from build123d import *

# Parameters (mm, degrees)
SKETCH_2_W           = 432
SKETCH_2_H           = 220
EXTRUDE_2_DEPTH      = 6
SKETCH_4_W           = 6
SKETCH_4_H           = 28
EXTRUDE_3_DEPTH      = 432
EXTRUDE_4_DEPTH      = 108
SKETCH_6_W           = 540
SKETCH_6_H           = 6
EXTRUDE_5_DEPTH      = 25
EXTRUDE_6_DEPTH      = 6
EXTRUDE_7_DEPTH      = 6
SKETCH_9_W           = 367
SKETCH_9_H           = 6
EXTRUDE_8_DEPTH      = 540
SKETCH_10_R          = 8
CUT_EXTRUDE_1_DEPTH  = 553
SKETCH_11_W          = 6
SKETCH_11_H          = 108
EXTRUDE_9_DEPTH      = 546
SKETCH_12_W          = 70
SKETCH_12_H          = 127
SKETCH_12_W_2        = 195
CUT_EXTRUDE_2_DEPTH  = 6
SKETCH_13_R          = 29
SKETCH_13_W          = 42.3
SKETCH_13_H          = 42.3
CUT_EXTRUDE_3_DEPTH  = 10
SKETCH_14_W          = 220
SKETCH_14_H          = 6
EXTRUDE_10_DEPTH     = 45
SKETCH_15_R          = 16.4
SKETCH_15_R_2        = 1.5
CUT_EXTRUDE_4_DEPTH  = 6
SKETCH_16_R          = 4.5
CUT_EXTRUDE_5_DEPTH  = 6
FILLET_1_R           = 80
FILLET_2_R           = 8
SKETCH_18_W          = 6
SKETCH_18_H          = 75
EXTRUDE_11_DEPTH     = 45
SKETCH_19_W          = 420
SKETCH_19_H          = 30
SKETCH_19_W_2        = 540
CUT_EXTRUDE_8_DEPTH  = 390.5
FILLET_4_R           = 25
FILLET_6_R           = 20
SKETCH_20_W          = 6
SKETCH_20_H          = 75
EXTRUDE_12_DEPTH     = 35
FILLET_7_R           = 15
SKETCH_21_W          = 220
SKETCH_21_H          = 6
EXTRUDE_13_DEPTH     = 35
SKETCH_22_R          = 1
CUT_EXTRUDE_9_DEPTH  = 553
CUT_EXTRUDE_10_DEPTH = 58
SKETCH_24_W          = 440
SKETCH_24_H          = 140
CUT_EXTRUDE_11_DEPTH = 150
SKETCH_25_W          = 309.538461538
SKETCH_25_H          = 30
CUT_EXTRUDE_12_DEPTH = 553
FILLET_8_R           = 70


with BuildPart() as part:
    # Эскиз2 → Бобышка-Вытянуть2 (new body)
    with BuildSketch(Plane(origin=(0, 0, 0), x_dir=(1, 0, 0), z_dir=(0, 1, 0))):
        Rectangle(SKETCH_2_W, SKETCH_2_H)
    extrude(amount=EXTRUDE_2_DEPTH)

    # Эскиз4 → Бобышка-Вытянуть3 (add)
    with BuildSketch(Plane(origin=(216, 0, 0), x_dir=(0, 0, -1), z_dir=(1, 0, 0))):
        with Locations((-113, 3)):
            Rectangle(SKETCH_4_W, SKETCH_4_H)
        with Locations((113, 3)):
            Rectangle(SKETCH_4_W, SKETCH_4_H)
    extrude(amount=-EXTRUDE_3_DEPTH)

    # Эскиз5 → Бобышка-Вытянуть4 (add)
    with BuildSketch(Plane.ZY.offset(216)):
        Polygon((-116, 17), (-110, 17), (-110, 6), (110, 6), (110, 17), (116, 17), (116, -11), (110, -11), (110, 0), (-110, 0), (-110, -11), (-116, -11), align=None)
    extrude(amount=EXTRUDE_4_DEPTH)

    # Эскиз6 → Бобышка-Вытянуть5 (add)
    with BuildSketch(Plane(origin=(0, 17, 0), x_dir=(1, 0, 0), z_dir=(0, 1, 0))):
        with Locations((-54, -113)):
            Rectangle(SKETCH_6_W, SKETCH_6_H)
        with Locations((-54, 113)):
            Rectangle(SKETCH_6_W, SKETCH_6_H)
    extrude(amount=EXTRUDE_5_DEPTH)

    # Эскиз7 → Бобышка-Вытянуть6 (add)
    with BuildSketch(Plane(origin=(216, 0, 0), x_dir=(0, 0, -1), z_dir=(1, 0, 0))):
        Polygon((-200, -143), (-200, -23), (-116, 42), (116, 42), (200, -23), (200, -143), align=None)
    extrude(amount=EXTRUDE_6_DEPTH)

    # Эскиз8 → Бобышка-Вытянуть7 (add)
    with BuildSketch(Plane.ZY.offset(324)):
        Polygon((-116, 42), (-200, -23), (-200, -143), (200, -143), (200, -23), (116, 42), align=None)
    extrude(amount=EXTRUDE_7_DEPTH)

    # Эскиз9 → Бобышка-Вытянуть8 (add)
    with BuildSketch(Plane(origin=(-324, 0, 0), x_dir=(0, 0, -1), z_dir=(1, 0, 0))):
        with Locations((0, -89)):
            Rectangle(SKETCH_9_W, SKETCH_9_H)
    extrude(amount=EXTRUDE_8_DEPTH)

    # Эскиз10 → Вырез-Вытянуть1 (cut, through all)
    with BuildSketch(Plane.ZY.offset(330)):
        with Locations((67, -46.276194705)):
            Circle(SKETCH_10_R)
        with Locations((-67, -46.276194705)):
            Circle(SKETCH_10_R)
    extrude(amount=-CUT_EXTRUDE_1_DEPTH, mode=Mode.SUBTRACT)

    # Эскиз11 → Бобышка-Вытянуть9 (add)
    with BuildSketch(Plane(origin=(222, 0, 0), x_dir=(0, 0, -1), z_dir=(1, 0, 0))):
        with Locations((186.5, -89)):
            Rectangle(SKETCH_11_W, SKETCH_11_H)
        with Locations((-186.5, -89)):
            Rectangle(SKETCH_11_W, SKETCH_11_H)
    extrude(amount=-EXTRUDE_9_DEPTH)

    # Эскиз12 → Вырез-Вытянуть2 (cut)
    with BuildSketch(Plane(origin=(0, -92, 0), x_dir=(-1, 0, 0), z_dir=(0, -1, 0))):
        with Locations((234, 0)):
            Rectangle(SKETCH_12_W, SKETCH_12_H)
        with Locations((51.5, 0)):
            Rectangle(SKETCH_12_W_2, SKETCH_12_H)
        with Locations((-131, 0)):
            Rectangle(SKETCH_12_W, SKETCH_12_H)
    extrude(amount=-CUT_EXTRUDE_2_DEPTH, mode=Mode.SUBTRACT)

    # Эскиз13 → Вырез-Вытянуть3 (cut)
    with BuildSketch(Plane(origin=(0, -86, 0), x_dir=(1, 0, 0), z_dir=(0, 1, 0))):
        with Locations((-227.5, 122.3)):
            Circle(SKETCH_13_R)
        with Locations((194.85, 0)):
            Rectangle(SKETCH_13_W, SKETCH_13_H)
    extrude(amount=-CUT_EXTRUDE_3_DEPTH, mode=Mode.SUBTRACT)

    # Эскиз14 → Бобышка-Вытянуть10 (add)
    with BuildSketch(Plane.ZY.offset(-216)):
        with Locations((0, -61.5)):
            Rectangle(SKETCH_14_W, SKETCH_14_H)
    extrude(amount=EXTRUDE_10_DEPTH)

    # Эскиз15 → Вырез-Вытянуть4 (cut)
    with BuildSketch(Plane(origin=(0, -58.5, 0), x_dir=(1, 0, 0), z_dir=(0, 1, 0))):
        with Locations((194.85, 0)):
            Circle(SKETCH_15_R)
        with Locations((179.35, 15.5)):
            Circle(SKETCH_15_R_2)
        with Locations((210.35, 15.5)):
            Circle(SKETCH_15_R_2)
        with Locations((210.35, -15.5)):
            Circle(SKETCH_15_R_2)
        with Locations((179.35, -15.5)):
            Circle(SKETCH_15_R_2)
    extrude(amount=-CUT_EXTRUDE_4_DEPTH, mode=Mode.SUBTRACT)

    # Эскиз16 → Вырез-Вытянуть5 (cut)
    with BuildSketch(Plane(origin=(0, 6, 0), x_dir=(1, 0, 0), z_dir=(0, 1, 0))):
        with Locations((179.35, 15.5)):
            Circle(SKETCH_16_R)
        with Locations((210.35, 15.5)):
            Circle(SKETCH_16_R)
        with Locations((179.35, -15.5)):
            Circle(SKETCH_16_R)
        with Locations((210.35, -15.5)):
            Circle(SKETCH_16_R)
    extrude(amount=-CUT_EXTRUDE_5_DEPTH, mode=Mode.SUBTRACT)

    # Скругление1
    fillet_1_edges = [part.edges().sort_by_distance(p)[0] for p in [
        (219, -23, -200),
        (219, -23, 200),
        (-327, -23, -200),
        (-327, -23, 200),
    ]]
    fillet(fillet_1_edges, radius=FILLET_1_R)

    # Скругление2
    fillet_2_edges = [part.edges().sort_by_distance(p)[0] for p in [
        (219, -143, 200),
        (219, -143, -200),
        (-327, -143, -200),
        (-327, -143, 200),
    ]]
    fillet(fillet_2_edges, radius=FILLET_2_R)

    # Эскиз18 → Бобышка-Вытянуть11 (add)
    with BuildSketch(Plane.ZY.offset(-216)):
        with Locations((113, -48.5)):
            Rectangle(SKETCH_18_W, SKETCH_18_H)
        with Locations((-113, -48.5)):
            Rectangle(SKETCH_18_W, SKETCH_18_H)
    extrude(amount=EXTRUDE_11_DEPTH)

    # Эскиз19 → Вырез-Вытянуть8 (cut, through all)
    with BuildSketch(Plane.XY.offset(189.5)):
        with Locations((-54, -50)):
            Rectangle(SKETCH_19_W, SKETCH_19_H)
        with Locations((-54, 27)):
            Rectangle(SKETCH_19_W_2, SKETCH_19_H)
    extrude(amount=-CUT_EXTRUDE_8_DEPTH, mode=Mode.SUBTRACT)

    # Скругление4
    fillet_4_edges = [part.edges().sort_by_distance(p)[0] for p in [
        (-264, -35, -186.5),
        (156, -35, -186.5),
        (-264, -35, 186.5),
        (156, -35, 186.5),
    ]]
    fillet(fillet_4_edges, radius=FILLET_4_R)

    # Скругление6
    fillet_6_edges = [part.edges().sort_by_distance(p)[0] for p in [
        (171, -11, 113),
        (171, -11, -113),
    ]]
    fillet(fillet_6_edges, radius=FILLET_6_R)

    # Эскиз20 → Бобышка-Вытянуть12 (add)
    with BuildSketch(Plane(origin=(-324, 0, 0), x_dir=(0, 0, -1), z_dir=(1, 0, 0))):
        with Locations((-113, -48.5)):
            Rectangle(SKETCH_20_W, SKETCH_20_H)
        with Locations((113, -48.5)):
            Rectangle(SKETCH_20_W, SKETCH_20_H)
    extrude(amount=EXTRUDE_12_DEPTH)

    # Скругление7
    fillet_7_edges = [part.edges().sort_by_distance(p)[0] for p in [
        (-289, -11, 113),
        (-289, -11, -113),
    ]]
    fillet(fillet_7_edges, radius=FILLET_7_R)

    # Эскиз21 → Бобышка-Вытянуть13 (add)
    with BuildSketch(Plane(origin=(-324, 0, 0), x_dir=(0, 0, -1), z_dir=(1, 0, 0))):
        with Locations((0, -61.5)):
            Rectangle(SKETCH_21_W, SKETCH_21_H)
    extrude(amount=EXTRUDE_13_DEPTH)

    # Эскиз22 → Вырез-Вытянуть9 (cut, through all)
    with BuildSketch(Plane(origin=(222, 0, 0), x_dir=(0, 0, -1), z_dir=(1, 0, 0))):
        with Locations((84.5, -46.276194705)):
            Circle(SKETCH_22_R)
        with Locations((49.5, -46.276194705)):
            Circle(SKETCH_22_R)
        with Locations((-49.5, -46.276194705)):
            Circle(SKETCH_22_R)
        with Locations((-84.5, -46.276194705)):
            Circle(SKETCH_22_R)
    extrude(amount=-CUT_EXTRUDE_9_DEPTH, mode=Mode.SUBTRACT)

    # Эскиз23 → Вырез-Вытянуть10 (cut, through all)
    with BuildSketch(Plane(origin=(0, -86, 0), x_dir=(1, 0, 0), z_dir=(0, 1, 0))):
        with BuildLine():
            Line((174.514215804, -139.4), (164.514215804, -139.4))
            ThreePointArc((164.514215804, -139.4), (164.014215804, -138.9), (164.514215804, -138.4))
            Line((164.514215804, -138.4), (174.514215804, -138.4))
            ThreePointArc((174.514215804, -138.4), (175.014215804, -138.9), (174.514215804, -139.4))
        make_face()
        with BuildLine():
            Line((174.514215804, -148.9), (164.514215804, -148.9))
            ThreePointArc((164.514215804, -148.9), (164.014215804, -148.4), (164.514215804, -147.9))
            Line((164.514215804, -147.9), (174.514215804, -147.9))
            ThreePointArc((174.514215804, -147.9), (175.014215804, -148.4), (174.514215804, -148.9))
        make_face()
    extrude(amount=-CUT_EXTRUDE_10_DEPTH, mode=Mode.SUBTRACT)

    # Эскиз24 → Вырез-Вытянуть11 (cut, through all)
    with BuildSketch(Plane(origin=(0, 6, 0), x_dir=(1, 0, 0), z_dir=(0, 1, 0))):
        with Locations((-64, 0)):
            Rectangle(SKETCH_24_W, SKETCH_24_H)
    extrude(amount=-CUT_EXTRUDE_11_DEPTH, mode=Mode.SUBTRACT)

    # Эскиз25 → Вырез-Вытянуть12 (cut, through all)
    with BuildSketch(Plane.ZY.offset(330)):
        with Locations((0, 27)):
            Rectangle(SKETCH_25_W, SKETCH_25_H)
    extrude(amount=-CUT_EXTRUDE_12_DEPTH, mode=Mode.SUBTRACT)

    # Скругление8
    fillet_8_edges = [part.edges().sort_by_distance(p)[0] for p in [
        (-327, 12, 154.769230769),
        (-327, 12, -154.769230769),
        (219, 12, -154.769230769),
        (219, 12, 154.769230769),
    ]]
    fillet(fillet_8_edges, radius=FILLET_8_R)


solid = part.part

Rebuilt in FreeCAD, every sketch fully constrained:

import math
import FreeCAD as App
import Part
import Sketcher
Q = App.Units.Quantity


def edges_at(feature, points):
    """Names of the edges that pass closest to the given points."""
    edges = feature.Shape.Edges
    near = lambda p: min(range(len(edges)), key=lambda i: edges[i].distToShape(Part.Vertex(*p))[0])
    return sorted({f"Edge{near(p) + 1}" for p in points})


def add_polygon(sketch, points):
    """Adds a closed chain of lines whose ends are joined by coincident constraints."""
    first, n = sketch.GeometryCount, len(points)
    for a, b in zip(points, points[1:] + points[:1]):
        sketch.addGeometry(Part.LineSegment(App.Vector(*a, 0), App.Vector(*b, 0)), False)
    for i in range(n):
        sketch.addConstraint(Sketcher.Constraint("Coincident", first + i, 2, first + (i + 1) % n, 1))

doc = App.newDocument("Part")
body = doc.addObject("PartDesign::Body", "Body")

# Sketch on XZ plane
sketch1 = doc.addObject("Sketcher::SketchObject", "Sketch")
body.addObject(sketch1)
sketch1.AttachmentSupport = (doc.XZ_Plane, [""])
sketch1.MapMode = "FlatFace"
add_polygon(sketch1, [(-216, -110), (-216, 110), (216, 110), (216, -110)])  # lines 0-3
sketch1.addConstraint([
    Sketcher.Constraint("Vertical", 0),
    Sketcher.Constraint("Horizontal", 1),
    Sketcher.Constraint("Vertical", 2),
    Sketcher.Constraint("Horizontal", 3),
    Sketcher.Constraint("Symmetric", 0, 2, 2, 2, -1, 1),
    Sketcher.Constraint("DistanceX", 1, 1, 1, 2, Q("432 mm")),
    Sketcher.Constraint("DistanceY", 0, 1, 0, 2, Q("220 mm")),
])
pad1 = doc.addObject("PartDesign::Pad", "Pad")
body.addObject(pad1)
pad1.Profile = sketch1
pad1.Length = 6
pad1.Reversed = True

# Sketch on YZ plane
sketch2 = doc.addObject("Sketcher::SketchObject", "Sketch001")
body.addObject(sketch2)
sketch2.AttachmentSupport = (doc.YZ_Plane, [""])
sketch2.MapMode = "FlatFace"
sketch2.AttachmentOffset = App.Placement(App.Vector(0, 0, 216), App.Rotation())
add_polygon(sketch2, [(17, 116), (-11, 116), (-11, 110), (17, 110)])  # lines 0-3
add_polygon(sketch2, [(17, -110), (-11, -110), (-11, -116), (17, -116)])  # lines 4-7
sketch2.addConstraint([
    Sketcher.Constraint("Horizontal", 0),
    Sketcher.Constraint("Vertical", 1),
    Sketcher.Constraint("Horizontal", 2),
    Sketcher.Constraint("Vertical", 3),
    Sketcher.Constraint("Horizontal", 4),
    Sketcher.Constraint("Vertical", 5),
    Sketcher.Constraint("Horizontal", 6),
    Sketcher.Constraint("Vertical", 7),
    Sketcher.Constraint("Symmetric", 1, 2, 4, 2, -1),
    Sketcher.Constraint("Symmetric", 3, 2, 6, 2, -1),
    Sketcher.Constraint("DistanceX", 0, 2, 0, 1, Q("28 mm")),
    Sketcher.Constraint("DistanceY", 1, 2, 1, 1, Q("6 mm")),
    Sketcher.Constraint("DistanceX", 0, 2, -1, 1, Q("11 mm")),
    Sketcher.Constraint("DistanceY", -1, 1, 0, 2, Q("116 mm")),
])
pad2 = doc.addObject("PartDesign::Pad", "Pad001")
body.addObject(pad2)
pad2.Profile = sketch2
pad2.Length = 432
pad2.Reversed = True

# Sketch on YZ plane
sketch3 = doc.addObject("Sketcher::SketchObject", "Sketch002")
body.addObject(sketch3)
sketch3.AttachmentSupport = (doc.YZ_Plane, [""])
sketch3.MapMode = "FlatFace"
sketch3.AttachmentOffset = App.Placement(App.Vector(0, 0, -216), App.Rotation())
add_polygon(sketch3, [(17, -110), (17, -116), (-11, -116), (-11, -110), (0, -110), (0, 110), (-11, 110), (-11, 116), (17, 116), (17, 110), (6, 110), (6, -110)])  # lines 0-11
sketch3.addConstraint([
    Sketcher.Constraint("Vertical", 0),
    Sketcher.Constraint("Horizontal", 1),
    Sketcher.Constraint("Vertical", 2),
    Sketcher.Constraint("Horizontal", 3),
    Sketcher.Constraint("Vertical", 4),
    Sketcher.Constraint("Horizontal", 5),
    Sketcher.Constraint("Vertical", 6),
    Sketcher.Constraint("Horizontal", 7),
    Sketcher.Constraint("Vertical", 8),
    Sketcher.Constraint("Horizontal", 9),
    Sketcher.Constraint("Vertical", 10),
    Sketcher.Constraint("Horizontal", 11),
    Sketcher.Constraint("Symmetric", 3, 2, 4, 2, -1, 1),
    Sketcher.Constraint("Symmetric", 1, 2, 6, 2, -1),
    Sketcher.Constraint("Symmetric", 8, 2, 11, 2, -1),
    Sketcher.Constraint("Horizontal", 5, 2, 8, 2),
    Sketcher.Constraint("Equal", 5, 9),
    Sketcher.Constraint("DistanceX", 1, 2, 1, 1, Q("28 mm")),
    Sketcher.Constraint("DistanceX", 3, 1, 3, 2, Q("11 mm")),
    Sketcher.Constraint("DistanceY", 0, 2, 0, 1, Q("6 mm")),
    Sketcher.Constraint("DistanceY", 4, 1, 4, 2, Q("220 mm")),
])
pad3 = doc.addObject("PartDesign::Pad", "Pad002")
body.addObject(pad3)
pad3.Profile = sketch3
pad3.Length = 108
pad3.Reversed = True

# Sketch on XZ plane
sketch4 = doc.addObject("Sketcher::SketchObject", "Sketch003")
body.addObject(sketch4)
sketch4.AttachmentSupport = (doc.XZ_Plane, [""])
sketch4.MapMode = "FlatFace"
sketch4.AttachmentOffset = App.Placement(App.Vector(0, 0, -17), App.Rotation())
add_polygon(sketch4, [(-324, 110), (-324, 116), (216, 116), (216, 110)])  # lines 0-3
add_polygon(sketch4, [(-324, -116), (-324, -110), (216, -110), (216, -116)])  # lines 4-7
sketch4.addConstraint([
    Sketcher.Constraint("Vertical", 0),
    Sketcher.Constraint("Horizontal", 1),
    Sketcher.Constraint("Vertical", 2),
    Sketcher.Constraint("Horizontal", 3),
    Sketcher.Constraint("Vertical", 4),
    Sketcher.Constraint("Horizontal", 5),
    Sketcher.Constraint("Vertical", 6),
    Sketcher.Constraint("Horizontal", 7),
    Sketcher.Constraint("Symmetric", 3, 2, 4, 2, -1),
    Sketcher.Constraint("Symmetric", 1, 2, 6, 2, -1),
    Sketcher.Constraint("DistanceX", 1, 1, 1, 2, Q("540 mm")),
    Sketcher.Constraint("DistanceY", 0, 1, 0, 2, Q("6 mm")),
    Sketcher.Constraint("DistanceX", 0, 2, -1, 1, Q("324 mm")),
    Sketcher.Constraint("DistanceY", -1, 1, 0, 2, Q("116 mm")),
])
pad4 = doc.addObject("PartDesign::Pad", "Pad003")
body.addObject(pad4)
pad4.Profile = sketch4
pad4.Length = 25
pad4.Reversed = True

# Sketch on YZ plane
sketch5 = doc.addObject("Sketcher::SketchObject", "Sketch004")
body.addObject(sketch5)
sketch5.AttachmentSupport = (doc.YZ_Plane, [""])
sketch5.MapMode = "FlatFace"
sketch5.AttachmentOffset = App.Placement(App.Vector(0, 0, 216), App.Rotation())
add_polygon(sketch5, [(-23, 200), (-143, 200), (-143, -200), (-23, -200), (42, -116), (42, 116)])  # lines 0-5
sketch5.addConstraint([
    Sketcher.Constraint("Horizontal", 0),
    Sketcher.Constraint("Vertical", 1),
    Sketcher.Constraint("Horizontal", 2),
    Sketcher.Constraint("Vertical", 4),
    Sketcher.Constraint("Symmetric", 2, 2, 5, 2, -1),
    Sketcher.Constraint("Equal", 3, 5),
    Sketcher.Constraint("DistanceX", 0, 2, 0, 1, Q("120 mm")),
    Sketcher.Constraint("DistanceY", 1, 2, 1, 1, Q("400 mm")),
    Sketcher.Constraint("DistanceY", 4, 1, 4, 2, Q("232 mm")),
    Sketcher.Constraint("DistanceX", 0, 2, -1, 1, Q("143 mm")),
    Sketcher.Constraint("DistanceX", -1, 1, 3, 2, Q("42 mm")),
])
pad5 = doc.addObject("PartDesign::Pad", "Pad004")
body.addObject(pad5)
pad5.Profile = sketch5
pad5.Length = 6

# Sketch on YZ plane
sketch6 = doc.addObject("Sketcher::SketchObject", "Sketch005")
body.addObject(sketch6)
sketch6.AttachmentSupport = (doc.YZ_Plane, [""])
sketch6.MapMode = "FlatFace"
sketch6.AttachmentOffset = App.Placement(App.Vector(0, 0, -324), App.Rotation())
add_polygon(sketch6, [(42, -116), (-23, -200), (-143, -200), (-143, 200), (-23, 200), (42, 116)])  # lines 0-5
sketch6.addConstraint([
    Sketcher.Constraint("Horizontal", 1),
    Sketcher.Constraint("Vertical", 2),
    Sketcher.Constraint("Horizontal", 3),
    Sketcher.Constraint("Vertical", 5),
    Sketcher.Constraint("Symmetric", 0, 2, 3, 2, -1),
    Sketcher.Constraint("Equal", 0, 4),
    Sketcher.Constraint("DistanceX", 1, 2, 1, 1, Q("120 mm")),
    Sketcher.Constraint("DistanceY", 2, 1, 2, 2, Q("400 mm")),
    Sketcher.Constraint("DistanceY", 5, 2, 5, 1, Q("232 mm")),
    Sketcher.Constraint("DistanceX", 0, 2, -1, 1, Q("23 mm")),
    Sketcher.Constraint("DistanceX", -1, 1, 4, 2, Q("42 mm")),
])
pad6 = doc.addObject("PartDesign::Pad", "Pad005")
body.addObject(pad6)
pad6.Profile = sketch6
pad6.Length = 6
pad6.Reversed = True

# Sketch on YZ plane
sketch7 = doc.addObject("Sketcher::SketchObject", "Sketch006")
body.addObject(sketch7)
sketch7.AttachmentSupport = (doc.YZ_Plane, [""])
sketch7.MapMode = "FlatFace"
sketch7.AttachmentOffset = App.Placement(App.Vector(0, 0, -324), App.Rotation())
add_polygon(sketch7, [(-86, 184), (-92, 184), (-92, -184), (-86, -184)])  # lines 0-3
sketch7.addConstraint([
    Sketcher.Constraint("Horizontal", 0),
    Sketcher.Constraint("Vertical", 1),
    Sketcher.Constraint("Horizontal", 2),
    Sketcher.Constraint("Vertical", 3),
    Sketcher.Constraint("DistanceX", 0, 2, 0, 1, Q("6 mm")),
    Sketcher.Constraint("DistanceY", 1, 2, 1, 1, Q("367 mm")),
    Sketcher.Constraint("DistanceX", 0, 2, -1, 1, Q("92 mm")),
    Sketcher.Constraint("DistanceY", -1, 1, 0, 2, Q("183.5 mm")),
])
pad7 = doc.addObject("PartDesign::Pad", "Pad006")
body.addObject(pad7)
pad7.Profile = sketch7
pad7.Length = 540

# Sketch on YZ plane
sketch8 = doc.addObject("Sketcher::SketchObject", "Sketch007")
body.addObject(sketch8)
sketch8.AttachmentSupport = (doc.YZ_Plane, [""])
sketch8.MapMode = "FlatFace"
sketch8.AttachmentOffset = App.Placement(App.Vector(0, 0, -330), App.Rotation())
sketch8.addGeometry([
    Part.Circle(App.Vector(-46, 67, 0), App.Vector(0, 0, 1), 8),
    Part.Circle(App.Vector(-46, -67, 0), App.Vector(0, 0, 1), 8),
], False)
sketch8.addConstraint([
    Sketcher.Constraint("Equal", 0, 1),
    Sketcher.Constraint("Symmetric", 0, 3, 1, 3, -1),
    Sketcher.Constraint("Diameter", 0, Q("16 mm")),
    Sketcher.Constraint("DistanceY", -1, 1, 0, 3, Q("67 mm")),
    Sketcher.Constraint("DistanceX", 0, 3, -1, 1, Q("46.276195 mm")),
])
pocket1 = doc.addObject("PartDesign::Pocket", "Pocket")
body.addObject(pocket1)
pocket1.Profile = sketch8
pocket1.Type = "ThroughAll"
pocket1.Reversed = True

# Sketch on YZ plane
sketch9 = doc.addObject("Sketcher::SketchObject", "Sketch008")
body.addObject(sketch9)
sketch9.AttachmentSupport = (doc.YZ_Plane, [""])
sketch9.MapMode = "FlatFace"
sketch9.AttachmentOffset = App.Placement(App.Vector(0, 0, 222), App.Rotation())
add_polygon(sketch9, [(-35, -184), (-143, -184), (-143, -190), (-35, -190)])  # lines 0-3
add_polygon(sketch9, [(-35, 190), (-143, 190), (-143, 184), (-35, 184)])  # lines 4-7
sketch9.addConstraint([
    Sketcher.Constraint("Horizontal", 0),
    Sketcher.Constraint("Vertical", 1),
    Sketcher.Constraint("Horizontal", 2),
    Sketcher.Constraint("Vertical", 3),
    Sketcher.Constraint("Horizontal", 4),
    Sketcher.Constraint("Vertical", 5),
    Sketcher.Constraint("Horizontal", 6),
    Sketcher.Constraint("Vertical", 7),
    Sketcher.Constraint("Symmetric", 1, 2, 4, 2, -1),
    Sketcher.Constraint("Symmetric", 3, 2, 6, 2, -1),
    Sketcher.Constraint("DistanceX", 0, 2, 0, 1, Q("108 mm")),
    Sketcher.Constraint("DistanceY", 1, 2, 1, 1, Q("6 mm")),
    Sketcher.Constraint("DistanceX", 0, 2, -1, 1, Q("143 mm")),
    Sketcher.Constraint("DistanceY", 0, 2, 4, 2, Q("373 mm")),
])
pad8 = doc.addObject("PartDesign::Pad", "Pad007")
body.addObject(pad8)
pad8.Profile = sketch9
pad8.Length = 546
pad8.Reversed = True

# Sketch on XZ plane
sketch10 = doc.addObject("Sketcher::SketchObject", "Sketch009")
body.addObject(sketch10)
sketch10.AttachmentSupport = (doc.XZ_Plane, [""])
sketch10.MapMode = "FlatFace"
sketch10.AttachmentOffset = App.Placement(App.Vector(0, 0, 92), App.Rotation())
add_polygon(sketch10, [(-199, -64), (-199, 64), (-269, 64), (-269, -64)])  # lines 0-3
add_polygon(sketch10, [(46, -64), (46, 64), (-149, 64), (-149, -64)])  # lines 4-7
add_polygon(sketch10, [(166, -64), (166, 64), (96, 64), (96, -64)])  # lines 8-11
sketch10.addConstraint([
    Sketcher.Constraint("Vertical", 0),
    Sketcher.Constraint("Horizontal", 1),
    Sketcher.Constraint("Vertical", 2),
    Sketcher.Constraint("Horizontal", 3),
    Sketcher.Constraint("Vertical", 4),
    Sketcher.Constraint("Horizontal", 5),
    Sketcher.Constraint("Vertical", 6),
    Sketcher.Constraint("Horizontal", 7),
    Sketcher.Constraint("Vertical", 8),
    Sketcher.Constraint("Horizontal", 9),
    Sketcher.Constraint("Vertical", 10),
    Sketcher.Constraint("Horizontal", 11),
    Sketcher.Constraint("Horizontal", 1, 2, 4, 2),
    Sketcher.Constraint("Horizontal", 3, 2, 6, 2),
    Sketcher.Constraint("Horizontal", 5, 2, 8, 2),
    Sketcher.Constraint("Horizontal", 7, 2, 10, 2),
    Sketcher.Constraint("Equal", 3, 9),
    Sketcher.Constraint("DistanceX", 1, 2, 1, 1, Q("70 mm")),
    Sketcher.Constraint("DistanceX", 5, 2, 5, 1, Q("195 mm")),
    Sketcher.Constraint("DistanceY", 0, 1, 0, 2, Q("127 mm")),
    Sketcher.Constraint("DistanceX", 0, 2, -1, 1, Q("199 mm")),
    Sketcher.Constraint("DistanceX", -1, 1, 4, 2, Q("46 mm")),
    Sketcher.Constraint("DistanceX", -1, 1, 8, 2, Q("166 mm")),
    Sketcher.Constraint("DistanceY", -1, 1, 0, 2, Q("63.5 mm")),
])
pocket2 = doc.addObject("PartDesign::Pocket", "Pocket001")
body.addObject(pocket2)
pocket2.Profile = sketch10
pocket2.Length = 6

# Sketch on XZ plane
sketch11 = doc.addObject("Sketcher::SketchObject", "Sketch010")
body.addObject(sketch11)
sketch11.AttachmentSupport = (doc.XZ_Plane, [""])
sketch11.MapMode = "FlatFace"
sketch11.AttachmentOffset = App.Placement(App.Vector(0, 0, 86), App.Rotation())
sketch11.addGeometry(Part.Circle(App.Vector(-228, -122, 0), App.Vector(0, 0, 1), 29), False)  # 0
add_polygon(sketch11, [(174, -21), (174, 21), (216, 21), (216, -21)])  # lines 1-4
sketch11.addConstraint([
    Sketcher.Constraint("Vertical", 1),
    Sketcher.Constraint("Horizontal", 2),
    Sketcher.Constraint("Vertical", 3),
    Sketcher.Constraint("Horizontal", 4),
    Sketcher.Constraint("Equal", 4, 1),
    Sketcher.Constraint("Diameter", 0, Q("58 mm")),
    Sketcher.Constraint("DistanceX", 2, 1, 2, 2, Q("42.3 mm")),
    Sketcher.Constraint("DistanceX", -1, 1, 2, 2, Q("216 mm")),
    Sketcher.Constraint("DistanceX", 0, 3, -1, 1, Q("227.5 mm")),
    Sketcher.Constraint("DistanceY", 0, 3, -1, 1, Q("122.3 mm")),
    Sketcher.Constraint("DistanceY", -1, 1, 1, 2, Q("21.15 mm")),
])
pocket3 = doc.addObject("PartDesign::Pocket", "Pocket002")
body.addObject(pocket3)
pocket3.Profile = sketch11
pocket3.Length = 10
pocket3.Reversed = True

# Sketch on YZ plane
sketch12 = doc.addObject("Sketcher::SketchObject", "Sketch011")
body.addObject(sketch12)
sketch12.AttachmentSupport = (doc.YZ_Plane, [""])
sketch12.MapMode = "FlatFace"
sketch12.AttachmentOffset = App.Placement(App.Vector(0, 0, 216), App.Rotation())
add_polygon(sketch12, [(-58, -110), (-64, -110), (-64, 110), (-58, 110)])  # lines 0-3
sketch12.addConstraint([
    Sketcher.Constraint("Horizontal", 0),
    Sketcher.Constraint("Vertical", 1),
    Sketcher.Constraint("Horizontal", 2),
    Sketcher.Constraint("Vertical", 3),
    Sketcher.Constraint("DistanceX", 0, 2, 0, 1, Q("6 mm")),
    Sketcher.Constraint("DistanceY", 1, 1, 1, 2, Q("220 mm")),
    Sketcher.Constraint("DistanceY", 0, 2, -1, 1, Q("110 mm")),
    Sketcher.Constraint("DistanceX", 0, 2, -1, 1, Q("64.5 mm")),
])
pad9 = doc.addObject("PartDesign::Pad", "Pad008")
body.addObject(pad9)
pad9.Profile = sketch12
pad9.Length = 45
pad9.Reversed = True

# Sketch on XZ plane
sketch13 = doc.addObject("Sketcher::SketchObject", "Sketch012")
body.addObject(sketch13)
sketch13.AttachmentSupport = (doc.XZ_Plane, [""])
sketch13.MapMode = "FlatFace"
sketch13.AttachmentOffset = App.Placement(App.Vector(0, 0, 58.5), App.Rotation())
sketch13.addGeometry([
    Part.Circle(App.Vector(194.8, 0, 0), App.Vector(0, 0, 1), 16.4),  # 0
    Part.Circle(App.Vector(179.3, -15.5, 0), App.Vector(0, 0, 1), 1.5),  # 1
    Part.Circle(App.Vector(210.3, -15.5, 0), App.Vector(0, 0, 1), 1.5),  # 2
    Part.Circle(App.Vector(210.3, 15.5, 0), App.Vector(0, 0, 1), 1.5),  # 3
    Part.Circle(App.Vector(179.3, 15.5, 0), App.Vector(0, 0, 1), 1.5),  # 4
], False)
sketch13.addConstraint([
    Sketcher.Constraint("Equal", 1, 2),
    Sketcher.Constraint("Equal", 2, 3),
    Sketcher.Constraint("Equal", 3, 4),
    Sketcher.Constraint("Symmetric", 2, 3, 3, 3, -1),
    Sketcher.Constraint("Symmetric", 1, 3, 4, 3, -1),
    Sketcher.Constraint("PointOnObject", 0, 3, -1),
    Sketcher.Constraint("Horizontal", 1, 3, 2, 3),
    Sketcher.Constraint("Diameter", 1, Q("3 mm")),
    Sketcher.Constraint("Diameter", 0, Q("32.8 mm")),
    Sketcher.Constraint("DistanceX", 1, 3, 2, 3, Q("31 mm")),
    Sketcher.Constraint("DistanceY", 2, 3, 3, 3, Q("31 mm")),
    Sketcher.Constraint("DistanceX", 1, 3, 0, 3, Q("15.5 mm")),
    Sketcher.Constraint("DistanceX", -1, 1, 0, 3, Q("194.85 mm")),
])
pocket4 = doc.addObject("PartDesign::Pocket", "Pocket003")
body.addObject(pocket4)
pocket4.Profile = sketch13
pocket4.Length = 6
pocket4.Reversed = True

# Sketch on XZ plane
sketch14 = doc.addObject("Sketcher::SketchObject", "Sketch013")
body.addObject(sketch14)
sketch14.AttachmentSupport = (doc.XZ_Plane, [""])
sketch14.MapMode = "FlatFace"
sketch14.AttachmentOffset = App.Placement(App.Vector(0, 0, -6), App.Rotation())
sketch14.addGeometry([
    Part.Circle(App.Vector(179.3, -15.5, 0), App.Vector(0, 0, 1), 4.5),
    Part.Circle(App.Vector(210.3, -15.5, 0), App.Vector(0, 0, 1), 4.5),
    Part.Circle(App.Vector(179.3, 15.5, 0), App.Vector(0, 0, 1), 4.5),
    Part.Circle(App.Vector(210.3, 15.5, 0), App.Vector(0, 0, 1), 4.5),
], False)
sketch14.addConstraint([
    Sketcher.Constraint("Equal", 0, 1),
    Sketcher.Constraint("Equal", 1, 2),
    Sketcher.Constraint("Equal", 2, 3),
    Sketcher.Constraint("Symmetric", 0, 3, 2, 3, -1),
    Sketcher.Constraint("Symmetric", 1, 3, 3, 3, -1),
    Sketcher.Constraint("Horizontal", 0, 3, 1, 3),
    Sketcher.Constraint("Diameter", 0, Q("9 mm")),
    Sketcher.Constraint("DistanceX", 0, 3, 1, 3, Q("31 mm")),
    Sketcher.Constraint("DistanceY", 0, 3, 2, 3, Q("31 mm")),
    Sketcher.Constraint("DistanceX", -1, 1, 0, 3, Q("179.35 mm")),
])
pocket5 = doc.addObject("PartDesign::Pocket", "Pocket004")
body.addObject(pocket5)
pocket5.Profile = sketch14
pocket5.Length = 6
pocket5.Reversed = True
doc.recompute()

fillet = doc.addObject("PartDesign::Fillet", "Fillet")
body.addObject(fillet)
fillet.Base = (pocket5, edges_at(pocket5, [
    (219, -23, -200),
    (219, -23, 200),
    (-327, -23, -200),
    (-327, -23, 200),
]))
fillet.Radius = 80
doc.recompute()

fillet2 = doc.addObject("PartDesign::Fillet", "Fillet001")
body.addObject(fillet2)
fillet2.Base = (fillet, edges_at(fillet, [
    (219, -143, 200),
    (219, -143, -200),
    (-327, -143, -200),
    (-327, -143, 200),
]))
fillet2.Radius = 8

# Sketch on YZ plane
sketch15 = doc.addObject("Sketcher::SketchObject", "Sketch014")
body.addObject(sketch15)
sketch15.AttachmentSupport = (doc.YZ_Plane, [""])
sketch15.MapMode = "FlatFace"
sketch15.AttachmentOffset = App.Placement(App.Vector(0, 0, 216), App.Rotation())
add_polygon(sketch15, [(-11, 110), (-86, 110), (-86, 116), (-11, 116)])  # lines 0-3
add_polygon(sketch15, [(-11, -116), (-86, -116), (-86, -110), (-11, -110)])  # lines 4-7
sketch15.addConstraint([
    Sketcher.Constraint("Horizontal", 0),
    Sketcher.Constraint("Vertical", 1),
    Sketcher.Constraint("Horizontal", 2),
    Sketcher.Constraint("Vertical", 3),
    Sketcher.Constraint("Horizontal", 4),
    Sketcher.Constraint("Vertical", 5),
    Sketcher.Constraint("Horizontal", 6),
    Sketcher.Constraint("Vertical", 7),
    Sketcher.Constraint("Symmetric", 1, 2, 4, 2, -1),
    Sketcher.Constraint("Symmetric", 3, 2, 6, 2, -1),
    Sketcher.Constraint("DistanceX", 0, 2, 0, 1, Q("75 mm")),
    Sketcher.Constraint("DistanceY", 1, 1, 1, 2, Q("6 mm")),
    Sketcher.Constraint("DistanceX", 0, 2, -1, 1, Q("86 mm")),
    Sketcher.Constraint("DistanceY", -1, 1, 0, 2, Q("110 mm")),
])
pad10 = doc.addObject("PartDesign::Pad", "Pad009")
body.addObject(pad10)
pad10.Profile = sketch15
pad10.Length = 45
pad10.Reversed = True

# Sketch on XY plane
sketch16 = doc.addObject("Sketcher::SketchObject", "Sketch015")
body.addObject(sketch16)
sketch16.AttachmentSupport = (doc.XY_Plane, [""])
sketch16.MapMode = "FlatFace"
sketch16.AttachmentOffset = App.Placement(App.Vector(0, 0, 189.5), App.Rotation())
add_polygon(sketch16, [(-264, -35), (-264, -65), (156, -65), (156, -35)])  # lines 0-3
add_polygon(sketch16, [(-324, 42), (-324, 12), (216, 12), (216, 42)])  # lines 4-7
sketch16.addConstraint([
    Sketcher.Constraint("Vertical", 0),
    Sketcher.Constraint("Horizontal", 1),
    Sketcher.Constraint("Vertical", 2),
    Sketcher.Constraint("Horizontal", 3),
    Sketcher.Constraint("Vertical", 4),
    Sketcher.Constraint("Horizontal", 5),
    Sketcher.Constraint("Vertical", 6),
    Sketcher.Constraint("Horizontal", 7),
    Sketcher.Constraint("Equal", 2, 4),
    Sketcher.Constraint("DistanceX", 1, 1, 1, 2, Q("420 mm")),
    Sketcher.Constraint("DistanceX", 5, 1, 5, 2, Q("540 mm")),
    Sketcher.Constraint("DistanceY", 0, 2, 0, 1, Q("30 mm")),
    Sketcher.Constraint("DistanceX", 0, 2, -1, 1, Q("264 mm")),
    Sketcher.Constraint("DistanceY", 0, 2, -1, 1, Q("65 mm")),
    Sketcher.Constraint("DistanceX", 4, 2, -1, 1, Q("324 mm")),
    Sketcher.Constraint("DistanceY", -1, 1, 4, 2, Q("12 mm")),
])
pocket6 = doc.addObject("PartDesign::Pocket", "Pocket005")
body.addObject(pocket6)
pocket6.Profile = sketch16
pocket6.Type = "ThroughAll"
doc.recompute()

fillet3 = doc.addObject("PartDesign::Fillet", "Fillet002")
body.addObject(fillet3)
fillet3.Base = (pocket6, edges_at(pocket6, [
    (-264, -35, -186.5),
    (156, -35, -186.5),
    (-264, -35, 186.5),
    (156, -35, 186.5),
]))
fillet3.Radius = 25
doc.recompute()

fillet4 = doc.addObject("PartDesign::Fillet", "Fillet003")
body.addObject(fillet4)
fillet4.Base = (fillet3, edges_at(fillet3, [(171, -11, 113), (171, -11, -113)]))
fillet4.Radius = 20

# Sketch on YZ plane
sketch17 = doc.addObject("Sketcher::SketchObject", "Sketch016")
body.addObject(sketch17)
sketch17.AttachmentSupport = (doc.YZ_Plane, [""])
sketch17.MapMode = "FlatFace"
sketch17.AttachmentOffset = App.Placement(App.Vector(0, 0, -324), App.Rotation())
add_polygon(sketch17, [(-11, 116), (-86, 116), (-86, 110), (-11, 110)])  # lines 0-3
add_polygon(sketch17, [(-11, -110), (-86, -110), (-86, -116), (-11, -116)])  # lines 4-7
sketch17.addConstraint([
    Sketcher.Constraint("Horizontal", 0),
    Sketcher.Constraint("Vertical", 1),
    Sketcher.Constraint("Horizontal", 2),
    Sketcher.Constraint("Vertical", 3),
    Sketcher.Constraint("Horizontal", 4),
    Sketcher.Constraint("Vertical", 5),
    Sketcher.Constraint("Horizontal", 6),
    Sketcher.Constraint("Vertical", 7),
    Sketcher.Constraint("Symmetric", 1, 2, 4, 2, -1),
    Sketcher.Constraint("Symmetric", 3, 2, 6, 2, -1),
    Sketcher.Constraint("DistanceX", 0, 2, 0, 1, Q("75 mm")),
    Sketcher.Constraint("DistanceY", 1, 2, 1, 1, Q("6 mm")),
    Sketcher.Constraint("DistanceX", 0, 2, -1, 1, Q("86 mm")),
    Sketcher.Constraint("DistanceY", -1, 1, 0, 2, Q("116 mm")),
])
pad11 = doc.addObject("PartDesign::Pad", "Pad010")
body.addObject(pad11)
pad11.Profile = sketch17
pad11.Length = 35
doc.recompute()

fillet5 = doc.addObject("PartDesign::Fillet", "Fillet004")
body.addObject(fillet5)
fillet5.Base = (pad11, edges_at(pad11, [(-289, -11, 113), (-289, -11, -113)]))
fillet5.Radius = 15

# Sketch on YZ plane
sketch18 = doc.addObject("Sketcher::SketchObject", "Sketch017")
body.addObject(sketch18)
sketch18.AttachmentSupport = (doc.YZ_Plane, [""])
sketch18.MapMode = "FlatFace"
sketch18.AttachmentOffset = App.Placement(App.Vector(0, 0, -324), App.Rotation())
add_polygon(sketch18, [(-58, 110), (-64, 110), (-64, -110), (-58, -110)])  # lines 0-3
sketch18.addConstraint([
    Sketcher.Constraint("Horizontal", 0),
    Sketcher.Constraint("Vertical", 1),
    Sketcher.Constraint("Horizontal", 2),
    Sketcher.Constraint("Vertical", 3),
    Sketcher.Constraint("DistanceX", 0, 2, 0, 1, Q("6 mm")),
    Sketcher.Constraint("DistanceY", 1, 2, 1, 1, Q("220 mm")),
    Sketcher.Constraint("DistanceY", -1, 1, 0, 2, Q("110 mm")),
    Sketcher.Constraint("DistanceX", 0, 2, -1, 1, Q("64.5 mm")),
])
pad12 = doc.addObject("PartDesign::Pad", "Pad011")
body.addObject(pad12)
pad12.Profile = sketch18
pad12.Length = 35

# Sketch on YZ plane
sketch19 = doc.addObject("Sketcher::SketchObject", "Sketch018")
body.addObject(sketch19)
sketch19.AttachmentSupport = (doc.YZ_Plane, [""])
sketch19.MapMode = "FlatFace"
sketch19.AttachmentOffset = App.Placement(App.Vector(0, 0, 222), App.Rotation())
sketch19.addGeometry([
    Part.Circle(App.Vector(-46.3, -84.5, 0), App.Vector(0, 0, 1), 1),
    Part.Circle(App.Vector(-46.3, -49.5, 0), App.Vector(0, 0, 1), 1),
    Part.Circle(App.Vector(-46.3, 49.5, 0), App.Vector(0, 0, 1), 1),
    Part.Circle(App.Vector(-46.3, 84.5, 0), App.Vector(0, 0, 1), 1),
], False)
sketch19.addConstraint([
    Sketcher.Constraint("Equal", 0, 1),
    Sketcher.Constraint("Equal", 1, 2),
    Sketcher.Constraint("Equal", 2, 3),
    Sketcher.Constraint("Symmetric", 1, 3, 2, 3, -1),
    Sketcher.Constraint("Symmetric", 0, 3, 3, 3, -1),
    Sketcher.Constraint("Vertical", 0, 3, 1, 3),
    Sketcher.Constraint("Diameter", 0, Q("2 mm")),
    Sketcher.Constraint("DistanceY", 0, 3, 1, 3, Q("35 mm")),
    Sketcher.Constraint("DistanceY", 1, 3, 2, 3, Q("99 mm")),
    Sketcher.Constraint("DistanceX", 0, 3, -1, 1, Q("46.276195 mm")),
])
pocket7 = doc.addObject("PartDesign::Pocket", "Pocket006")
body.addObject(pocket7)
pocket7.Profile = sketch19
pocket7.Type = "ThroughAll"

# Sketch on XZ plane
sketch20 = doc.addObject("Sketcher::SketchObject", "Sketch019")
body.addObject(sketch20)
sketch20.AttachmentSupport = (doc.XZ_Plane, [""])
sketch20.MapMode = "FlatFace"
sketch20.AttachmentOffset = App.Placement(App.Vector(0, 0, 86), App.Rotation())
sketch20.addGeometry([
    Part.LineSegment(App.Vector(164.5, 139.4, 0), App.Vector(174.5, 139.4, 0)),  # 0
    Part.ArcOfCircle(Part.Circle(App.Vector(174.5, 138.9, 0), App.Vector(0, 0, 1), 0.5), math.radians(-90), math.radians(90)),  # 1
    Part.LineSegment(App.Vector(174.5, 138.4, 0), App.Vector(164.5, 138.4, 0)),  # 2
    Part.ArcOfCircle(Part.Circle(App.Vector(164.5, 138.9, 0), App.Vector(0, 0, 1), 0.5), math.radians(90), math.radians(270)),  # 3
    Part.LineSegment(App.Vector(164.5, 148.9, 0), App.Vector(174.5, 148.9, 0)),  # 4
    Part.ArcOfCircle(Part.Circle(App.Vector(174.5, 148.4, 0), App.Vector(0, 0, 1), 0.5), math.radians(-90), math.radians(90)),  # 5
    Part.LineSegment(App.Vector(174.5, 147.9, 0), App.Vector(164.5, 147.9, 0)),  # 6
    Part.ArcOfCircle(Part.Circle(App.Vector(164.5, 148.4, 0), App.Vector(0, 0, 1), 0.5), math.radians(90), math.radians(270)),  # 7
], False)
sketch20.addConstraint([
    Sketcher.Constraint("Tangent", 0, 2, 1, 2),
    Sketcher.Constraint("Tangent", 1, 1, 2, 1),
    Sketcher.Constraint("Tangent", 2, 2, 3, 2),
    Sketcher.Constraint("Tangent", 3, 1, 0, 1),
    Sketcher.Constraint("Tangent", 4, 2, 5, 2),
    Sketcher.Constraint("Tangent", 5, 1, 6, 1),
    Sketcher.Constraint("Tangent", 6, 2, 7, 2),
    Sketcher.Constraint("Tangent", 7, 1, 4, 1),
    Sketcher.Constraint("Horizontal", 0),
    Sketcher.Constraint("Horizontal", 2),
    Sketcher.Constraint("Horizontal", 4),
    Sketcher.Constraint("Horizontal", 6),
    Sketcher.Constraint("Equal", 3, 5),
    Sketcher.Constraint("Vertical", 1, 3, 5, 3),
    Sketcher.Constraint("Vertical", 3, 3, 7, 3),
    Sketcher.Constraint("Radius", 1, Q("0.5 mm")),
    Sketcher.Constraint("DistanceX", 0, 1, 0, 2, Q("10 mm")),
    Sketcher.Constraint("DistanceY", 0, 2, 5, 3, Q("9 mm")),
    Sketcher.Constraint("DistanceY", -1, 1, 1, 3, Q("138.9 mm")),
    Sketcher.Constraint("DistanceX", -1, 1, 1, 3, Q("174.514216 mm")),
])
pocket8 = doc.addObject("PartDesign::Pocket", "Pocket007")
body.addObject(pocket8)
pocket8.Profile = sketch20
pocket8.Type = "ThroughAll"
pocket8.Reversed = True

# Sketch on XZ plane
sketch21 = doc.addObject("Sketcher::SketchObject", "Sketch020")
body.addObject(sketch21)
sketch21.AttachmentSupport = (doc.XZ_Plane, [""])
sketch21.MapMode = "FlatFace"
sketch21.AttachmentOffset = App.Placement(App.Vector(0, 0, -6), App.Rotation())
add_polygon(sketch21, [(-284, -70), (-284, 70), (156, 70), (156, -70)])  # lines 0-3
sketch21.addConstraint([
    Sketcher.Constraint("Vertical", 0),
    Sketcher.Constraint("Horizontal", 1),
    Sketcher.Constraint("Vertical", 2),
    Sketcher.Constraint("Horizontal", 3),
    Sketcher.Constraint("DistanceX", 1, 1, 1, 2, Q("440 mm")),
    Sketcher.Constraint("DistanceY", 0, 1, 0, 2, Q("140 mm")),
    Sketcher.Constraint("DistanceX", 0, 2, -1, 1, Q("284 mm")),
    Sketcher.Constraint("DistanceY", -1, 1, 0, 2, Q("70 mm")),
])
pocket9 = doc.addObject("PartDesign::Pocket", "Pocket008")
body.addObject(pocket9)
pocket9.Profile = sketch21
pocket9.Type = "ThroughAll"
pocket9.Reversed = True

# Sketch on YZ plane
sketch22 = doc.addObject("Sketcher::SketchObject", "Sketch021")
body.addObject(sketch22)
sketch22.AttachmentSupport = (doc.YZ_Plane, [""])
sketch22.MapMode = "FlatFace"
sketch22.AttachmentOffset = App.Placement(App.Vector(0, 0, -330), App.Rotation())
add_polygon(sketch22, [(42, -155), (12, -155), (12, 155), (42, 155)])  # lines 0-3
sketch22.addConstraint([
    Sketcher.Constraint("Horizontal", 0),
    Sketcher.Constraint("Vertical", 1),
    Sketcher.Constraint("Horizontal", 2),
    Sketcher.Constraint("Vertical", 3),
    Sketcher.Constraint("DistanceX", 0, 2, 0, 1, Q("30 mm")),
    Sketcher.Constraint("DistanceX", -1, 1, 0, 2, Q("12 mm")),
    Sketcher.Constraint("DistanceY", 1, 1, 1, 2, Q("309.538462 mm")),
    Sketcher.Constraint("DistanceY", 0, 2, -1, 1, Q("154.769231 mm")),
])
pocket10 = doc.addObject("PartDesign::Pocket", "Pocket009")
body.addObject(pocket10)
pocket10.Profile = sketch22
pocket10.Type = "ThroughAll"
pocket10.Reversed = True
doc.recompute()

fillet6 = doc.addObject("PartDesign::Fillet", "Fillet005")
body.addObject(fillet6)
fillet6.Base = (pocket10, edges_at(pocket10, [
    (-327, 12, 154.769),
    (-327, 12, -154.769),
    (219, 12, -154.769),
    (219, 12, 154.769),
]))
fillet6.Radius = 70

doc.recompute()
